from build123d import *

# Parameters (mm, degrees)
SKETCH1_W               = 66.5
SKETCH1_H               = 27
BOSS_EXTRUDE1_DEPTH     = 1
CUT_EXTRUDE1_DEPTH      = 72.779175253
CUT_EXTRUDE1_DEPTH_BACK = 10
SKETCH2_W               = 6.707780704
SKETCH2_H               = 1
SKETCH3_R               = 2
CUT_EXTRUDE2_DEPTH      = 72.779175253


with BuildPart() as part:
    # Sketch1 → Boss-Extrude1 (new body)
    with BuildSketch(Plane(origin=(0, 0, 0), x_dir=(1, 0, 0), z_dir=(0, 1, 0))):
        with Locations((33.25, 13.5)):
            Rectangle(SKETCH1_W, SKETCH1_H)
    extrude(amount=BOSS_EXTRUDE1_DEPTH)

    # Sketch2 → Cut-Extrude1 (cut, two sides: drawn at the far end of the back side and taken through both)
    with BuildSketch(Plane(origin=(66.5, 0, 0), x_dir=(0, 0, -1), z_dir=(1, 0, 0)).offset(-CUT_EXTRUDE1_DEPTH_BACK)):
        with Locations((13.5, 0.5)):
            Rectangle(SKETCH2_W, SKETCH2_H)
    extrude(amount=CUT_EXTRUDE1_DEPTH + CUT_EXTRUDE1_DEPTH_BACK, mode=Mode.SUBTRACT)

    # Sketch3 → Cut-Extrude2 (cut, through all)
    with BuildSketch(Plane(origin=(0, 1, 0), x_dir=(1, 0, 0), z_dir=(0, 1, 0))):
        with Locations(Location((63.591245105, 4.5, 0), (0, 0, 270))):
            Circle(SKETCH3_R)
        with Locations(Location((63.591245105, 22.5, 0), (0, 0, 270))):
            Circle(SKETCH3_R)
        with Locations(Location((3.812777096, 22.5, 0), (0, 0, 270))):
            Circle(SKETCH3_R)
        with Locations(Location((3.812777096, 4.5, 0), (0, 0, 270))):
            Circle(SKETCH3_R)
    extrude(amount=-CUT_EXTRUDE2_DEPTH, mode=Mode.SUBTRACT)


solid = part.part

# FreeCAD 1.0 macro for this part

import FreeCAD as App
import Part
import Sketcher


def add_polygon(sketch, points):
    """Adds a closed chain of lines whose ends are joined by coincident constraints."""
    first, n = sketch.GeometryCount, len(points)
    for a, b in zip(points, points[1:] + points[:1]):
        sketch.addGeometry(Part.LineSegment(App.Vector(*a, 0), App.Vector(*b, 0)), False)
    for i in range(n):
        sketch.addConstraint(Sketcher.Constraint("Coincident", first + i, 2, first + (i + 1) % n, 1))

doc = App.newDocument("Part")
body = doc.addObject("PartDesign::Body", "Body")

# Sketch on XZ plane
sketch1 = doc.addObject("Sketcher::SketchObject", "Sketch")
body.addObject(sketch1)
sketch1.AttachmentSupport = (doc.XZ_Plane, [""])
sketch1.MapMode = "FlatFace"
add_polygon(sketch1, [(0, -27), (0, 0), (66.5, 0), (66.5, -27)])  # lines 0-3
sketch1.addConstraint([
    Sketcher.Constraint("Vertical", 0),
    Sketcher.Constraint("Horizontal", 1),
    Sketcher.Constraint("Vertical", 2),
    Sketcher.Constraint("Horizontal", 3),
    Sketcher.Constraint("Coincident", 0, 2, -1, 1),
    Sketcher.Constraint("DistanceY", 0, 1, 0, 2, 27.0),
    Sketcher.Constraint("DistanceX", 1, 1, 1, 2, 66.5),
])
pad1 = doc.addObject("PartDesign::Pad", "Pad")
body.addObject(pad1)
pad1.Profile = sketch1
pad1.Length = 1
pad1.Reversed = True

# Sketch on YZ plane
sketch2 = doc.addObject("Sketcher::SketchObject", "Sketch001")
body.addObject(sketch2)
sketch2.AttachmentSupport = (doc.YZ_Plane, [""])
sketch2.MapMode = "FlatFace"
sketch2.AttachmentOffset = App.Placement(App.Vector(0, 0, 66.5), App.Rotation())
add_polygon(sketch2, [(1, -10.14611), (0, -10.14611), (0, -16.85389), (1, -16.85389)])  # lines 0-3
sketch2.addConstraint([
    Sketcher.Constraint("Horizontal", 0),
    Sketcher.Constraint("Vertical", 1),
    Sketcher.Constraint("Horizontal", 2),
    Sketcher.Constraint("Vertical", 3),
    Sketcher.Constraint("PointOnObject", 0, 2, -2),
    Sketcher.Constraint("DistanceX", 0, 2, 0, 1, 1.0),
    Sketcher.Constraint("DistanceY", 1, 2, 1, 1, 6.707781),
    Sketcher.Constraint("DistanceY", 0, 2, -1, 1, 10.14611),
])
pocket1 = doc.addObject("PartDesign::Pocket", "Pocket")
body.addObject(pocket1)
pocket1.Profile = sketch2
pocket1.Type = "TwoLengths"
pocket1.Length = 72.779175
pocket1.Length2 = 10
pocket1.Reversed = True

# Sketch on XZ plane
sketch3 = doc.addObject("Sketcher::SketchObject", "Sketch002")
body.addObject(sketch3)
sketch3.AttachmentSupport = (doc.XZ_Plane, [""])
sketch3.MapMode = "FlatFace"
sketch3.AttachmentOffset = App.Placement(App.Vector(0, 0, -1), App.Rotation())
sketch3.addGeometry([
    Part.Circle(App.Vector(63.591245, -4.5, 0), App.Vector(0, 0, 1), 2),
    Part.Circle(App.Vector(63.591245, -22.5, 0), App.Vector(0, 0, 1), 2),
    Part.Circle(App.Vector(3.812777, -22.5, 0), App.Vector(0, 0, 1), 2),
    Part.Circle(App.Vector(3.812777, -4.5, 0), App.Vector(0, 0, 1), 2),
], False)
sketch3.addConstraint([
    Sketcher.Constraint("Equal", 0, 1),
    Sketcher.Constraint("Equal", 1, 2),
    Sketcher.Constraint("Equal", 2, 3),
    Sketcher.Constraint("Horizontal", 1, 3, 2, 3),
    Sketcher.Constraint("Horizontal", 0, 3, 3, 3),
    Sketcher.Constraint("Vertical", 0, 3, 1, 3),
    Sketcher.Constraint("Vertical", 2, 3, 3, 3),
    Sketcher.Constraint("Diameter", 0, 4.0),
    Sketcher.Constraint("DistanceY", 1, 3, 0, 3, 18.0),
    Sketcher.Constraint("DistanceY", 0, 3, -1, 1, 4.5),
    Sketcher.Constraint("DistanceX", 2, 3, 1, 3, 59.778468),
    Sketcher.Constraint("DistanceX", -1, 1, 0, 3, 63.591245),
])
pocket2 = doc.addObject("PartDesign::Pocket", "Pocket001")
body.addObject(pocket2)
pocket2.Profile = sketch3
pocket2.Type = "ThroughAll"
pocket2.Reversed = True

doc.recompute()
